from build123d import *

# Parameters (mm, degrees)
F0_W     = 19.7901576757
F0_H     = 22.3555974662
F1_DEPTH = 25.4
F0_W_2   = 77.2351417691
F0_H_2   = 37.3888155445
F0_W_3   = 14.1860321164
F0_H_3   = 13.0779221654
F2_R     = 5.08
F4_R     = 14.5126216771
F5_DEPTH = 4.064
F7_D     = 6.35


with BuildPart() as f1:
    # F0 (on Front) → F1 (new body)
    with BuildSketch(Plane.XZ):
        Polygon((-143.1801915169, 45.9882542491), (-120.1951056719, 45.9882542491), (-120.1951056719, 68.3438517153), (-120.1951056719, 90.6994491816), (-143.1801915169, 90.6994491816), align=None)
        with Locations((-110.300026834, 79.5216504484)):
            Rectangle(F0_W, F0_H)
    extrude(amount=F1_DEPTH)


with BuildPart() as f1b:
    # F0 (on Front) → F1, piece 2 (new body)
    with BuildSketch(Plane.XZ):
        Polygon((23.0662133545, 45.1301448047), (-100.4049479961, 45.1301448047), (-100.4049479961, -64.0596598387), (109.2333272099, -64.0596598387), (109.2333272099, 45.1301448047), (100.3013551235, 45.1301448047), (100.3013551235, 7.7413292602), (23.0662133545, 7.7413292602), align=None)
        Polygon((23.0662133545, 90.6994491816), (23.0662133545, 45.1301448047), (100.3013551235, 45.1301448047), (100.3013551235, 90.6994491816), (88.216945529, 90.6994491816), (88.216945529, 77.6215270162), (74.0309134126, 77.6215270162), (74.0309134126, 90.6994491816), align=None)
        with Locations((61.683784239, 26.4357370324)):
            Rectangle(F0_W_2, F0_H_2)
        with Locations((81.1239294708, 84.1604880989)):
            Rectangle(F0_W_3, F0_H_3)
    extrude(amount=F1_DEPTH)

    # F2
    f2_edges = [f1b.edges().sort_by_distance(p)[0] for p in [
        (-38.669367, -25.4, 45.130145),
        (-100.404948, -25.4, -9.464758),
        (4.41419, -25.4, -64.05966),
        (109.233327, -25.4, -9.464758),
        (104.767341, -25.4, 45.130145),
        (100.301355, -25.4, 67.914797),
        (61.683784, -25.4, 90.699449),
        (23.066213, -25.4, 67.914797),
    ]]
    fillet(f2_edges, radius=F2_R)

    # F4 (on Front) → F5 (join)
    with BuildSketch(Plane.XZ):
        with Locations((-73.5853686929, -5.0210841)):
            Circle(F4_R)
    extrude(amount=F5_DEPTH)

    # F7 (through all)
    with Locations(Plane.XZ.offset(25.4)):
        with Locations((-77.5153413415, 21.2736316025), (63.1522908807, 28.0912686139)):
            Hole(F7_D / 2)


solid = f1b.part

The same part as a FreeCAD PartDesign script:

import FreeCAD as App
import Part
import Sketcher
Q = App.Units.Quantity


def edges_at(feature, points):
    """Names of the edges that pass closest to the given points."""
    edges = feature.Shape.Edges
    near = lambda p: min(range(len(edges)), key=lambda i: edges[i].distToShape(Part.Vertex(*p))[0])
    return sorted({f"Edge{near(p) + 1}" for p in points})

doc = App.newDocument("Part")
body = doc.addObject("PartDesign::Body", "Body")

# Sketch on XZ plane
sketch1 = body.newObject("Sketcher::SketchObject", "Sketch")
sketch1.AttachmentSupport = (doc.getObject("XZ_Plane"), [""])
sketch1.MapMode = "FlatFace"
sketch1.addGeometry([
    Part.LineSegment(App.Vector(-143, 46, 0), App.Vector(-120, 46, 0)),  # 0
    Part.LineSegment(App.Vector(-120, 46, 0), App.Vector(-120, 68, 0)),  # 1
    Part.LineSegment(App.Vector(-120, 68, 0), App.Vector(-100, 68, 0)),  # 2
    Part.LineSegment(App.Vector(-100, 68, 0), App.Vector(-100, 91, 0)),  # 3
    Part.LineSegment(App.Vector(-100, 91, 0), App.Vector(-120, 91, 0)),  # 4
    Part.LineSegment(App.Vector(-120, 91, 0), App.Vector(-143, 91, 0)),  # 5
    Part.LineSegment(App.Vector(-143, 91, 0), App.Vector(-143, 46, 0)),  # 6
], False)
sketch1.addConstraint([
    Sketcher.Constraint("Coincident", 0, 2, 1, 1),
    Sketcher.Constraint("Coincident", 1, 2, 2, 1),
    Sketcher.Constraint("Coincident", 2, 2, 3, 1),
    Sketcher.Constraint("Coincident", 3, 2, 4, 1),
    Sketcher.Constraint("Coincident", 4, 2, 5, 1),
    Sketcher.Constraint("Coincident", 5, 2, 6, 1),
    Sketcher.Constraint("Coincident", 6, 2, 0, 1),
    Sketcher.Constraint("Horizontal", 0),
    Sketcher.Constraint("Vertical", 1),
    Sketcher.Constraint("Horizontal", 2),
    Sketcher.Constraint("Vertical", 3),
    Sketcher.Constraint("Horizontal", 4),
    Sketcher.Constraint("Horizontal", 5),
    Sketcher.Constraint("Vertical", 6),
    Sketcher.Constraint("Vertical", 1, 2, 4, 2),
    Sketcher.Constraint("Equal", 1, 3),
    Sketcher.Constraint("DistanceX", 0, 1, 0, 2, 22.985086),
    Sketcher.Constraint("DistanceX", 2, 1, 2, 2, 19.790158),
    Sketcher.Constraint("DistanceY", 1, 1, 1, 2, 22.355597),
    Sketcher.Constraint("DistanceY", -1, 1, 1, 2, 68.343852),
    Sketcher.Constraint("DistanceX", 5, 2, -1, 1, 143.180192),
])
pad1 = body.newObject("PartDesign::Pad", "Pad")
pad1.Profile = sketch1
pad1.Length = Q("1 in")
body2 = doc.addObject("PartDesign::Body", "Body001")

# Sketch on XZ plane
sketch2 = body2.newObject("Sketcher::SketchObject", "Sketch001")
sketch2.AttachmentSupport = (doc.getObject("XZ_Plane001"), [""])
sketch2.MapMode = "FlatFace"
sketch2.addGeometry([
    Part.LineSegment(App.Vector(23, 45, 0), App.Vector(-100, 45, 0)),  # 0
    Part.LineSegment(App.Vector(-100, 45, 0), App.Vector(-100, -64, 0)),  # 1
    Part.LineSegment(App.Vector(-100, -64, 0), App.Vector(109, -64, 0)),  # 2
    Part.LineSegment(App.Vector(109, -64, 0), App.Vector(109, 45, 0)),  # 3
    Part.LineSegment(App.Vector(109, 45, 0), App.Vector(100, 45, 0)),  # 4
    Part.LineSegment(App.Vector(100, 45, 0), App.Vector(100, 91, 0)),  # 5
    Part.LineSegment(App.Vector(100, 91, 0), App.Vector(23, 91, 0)),  # 6
    Part.LineSegment(App.Vector(23, 91, 0), App.Vector(23, 45, 0)),  # 7
], False)
sketch2.addConstraint([
    Sketcher.Constraint("Coincident", 0, 2, 1, 1),
    Sketcher.Constraint("Coincident", 1, 2, 2, 1),
    Sketcher.Constraint("Coincident", 2, 2, 3, 1),
    Sketcher.Constraint("Coincident", 3, 2, 4, 1),
    Sketcher.Constraint("Coincident", 4, 2, 5, 1),
    Sketcher.Constraint("Coincident", 5, 2, 6, 1),
    Sketcher.Constraint("Coincident", 6, 2, 7, 1),
    Sketcher.Constraint("Coincident", 7, 2, 0, 1),
    Sketcher.Constraint("Horizontal", 0),
    Sketcher.Constraint("Vertical", 1),
    Sketcher.Constraint("Horizontal", 2),
    Sketcher.Constraint("Vertical", 3),
    Sketcher.Constraint("Horizontal", 4),
    Sketcher.Constraint("Vertical", 5),
    Sketcher.Constraint("Horizontal", 6),
    Sketcher.Constraint("Vertical", 7),
    Sketcher.Constraint("Horizontal", 0, 2, 3, 2),
    Sketcher.Constraint("DistanceX", 0, 2, 0, 1, 123.471161),
    Sketcher.Constraint("DistanceX", 6, 2, 6, 1, 77.235142),
    Sketcher.Constraint("DistanceX", 2, 1, 2, 2, 209.638275),
    Sketcher.Constraint("DistanceY", 1, 2, 1, 1, 109.189805),
    Sketcher.Constraint("DistanceY", 5, 1, 5, 2, 45.569304),
    Sketcher.Constraint("DistanceY", 1, 2, -1, 1, 64.05966),
    Sketcher.Constraint("DistanceX", 0, 2, -1, 1, 100.404948),
])
pad2 = body2.newObject("PartDesign::Pad", "Pad001")
pad2.Profile = sketch2
pad2.Length = Q("1 in")
doc.recompute()

fillet = body2.newObject("PartDesign::Fillet", "Fillet")
fillet.Base = (pad2, edges_at(pad2, [
    (-38.669, -25.4, 45.13),
    (-100.405, -25.4, -9.465),
    (4.414, -25.4, -64.06),
    (109.233, -25.4, -9.465),
    (104.767, -25.4, 45.13),
    (100.301, -25.4, 67.915),
    (61.684, -25.4, 90.699),
    (23.066, -25.4, 67.915),
]))
fillet.Radius = Q("0.2 in")

# Sketch on XZ plane
sketch3 = body2.newObject("Sketcher::SketchObject", "Sketch002")
sketch3.AttachmentSupport = (doc.getObject("XZ_Plane001"), [""])
sketch3.MapMode = "FlatFace"
sketch3.addGeometry(Part.Circle(App.Vector(-74, -5, 0), App.Vector(0, 0, 1), 15), False)
sketch3.addConstraint([
    Sketcher.Constraint("Diameter", 0, 29.025243),
    Sketcher.Constraint("DistanceX", 0, 3, -1, 1, 73.585369),
    Sketcher.Constraint("DistanceY", 0, 3, -1, 1, 5.021084),
])
pad3 = body2.newObject("PartDesign::Pad", "Pad002")
pad3.Profile = sketch3
pad3.Length = Q("0.16 in")

# Sketch on XZ plane
sketch4 = body2.newObject("Sketcher::SketchObject", "Sketch003")
sketch4.AttachmentSupport = (doc.getObject("XZ_Plane001"), [""])
sketch4.MapMode = "FlatFace"
sketch4.AttachmentOffset = App.Placement(App.Vector(0, 0, 1 * 25.4), App.Rotation())
sketch4.addGeometry([
    Part.Circle(App.Vector(-77.5, 21.3, 0), App.Vector(0, 0, 1), 3.2),
    Part.Circle(App.Vector(63.2, 28.1, 0), App.Vector(0, 0, 1), 3.2),
], False)
sketch4.addConstraint([
    Sketcher.Constraint("Equal", 0, 1),
    Sketcher.Constraint("Diameter", 0, Q("0.25 in")),
    Sketcher.Constraint("DistanceX", 0, 3, -1, 1, 77.515341),
    Sketcher.Constraint("DistanceY", -1, 1, 0, 3, 21.273632),
    Sketcher.Constraint("DistanceX", -1, 1, 1, 3, 63.152291),
    Sketcher.Constraint("DistanceY", -1, 1, 1, 3, 28.091269),
])
doc.recompute()
hole = body2.newObject("PartDesign::Hole", "Hole")
hole.Profile = sketch4
hole.ThreadType = "None"
hole.Diameter = Q("0.25 in")
hole.DepthType = "ThroughAll"
body.Visibility = False

doc.recompute()
